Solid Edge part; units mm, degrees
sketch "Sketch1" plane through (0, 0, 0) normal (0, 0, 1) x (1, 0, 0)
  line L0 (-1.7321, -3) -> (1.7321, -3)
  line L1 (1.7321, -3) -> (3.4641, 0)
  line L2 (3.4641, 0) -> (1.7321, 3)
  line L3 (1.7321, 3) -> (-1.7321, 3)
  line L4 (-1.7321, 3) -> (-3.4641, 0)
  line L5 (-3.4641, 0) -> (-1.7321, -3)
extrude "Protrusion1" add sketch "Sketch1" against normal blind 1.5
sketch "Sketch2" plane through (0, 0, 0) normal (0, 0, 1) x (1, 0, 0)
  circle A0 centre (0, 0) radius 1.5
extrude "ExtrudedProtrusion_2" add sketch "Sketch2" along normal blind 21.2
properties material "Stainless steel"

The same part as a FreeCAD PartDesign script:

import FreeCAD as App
import Part
import Sketcher
Q = App.Units.Quantity

doc = App.newDocument("Part")
body = doc.addObject("PartDesign::Body", "Body")

sketch1 = doc.addObject("Sketcher::SketchObject", "Sketch")
body.addObject(sketch1)
sketch1.AttachmentSupport = (doc.XY_Plane, [""])
sketch1.MapMode = "FlatFace"
sketch1.addGeometry(Part.LineSegment(App.Vector(-3.5, 0, 0), App.Vector(-1.7, -3, 0)), False)
sketch1.addGeometry(Part.LineSegment(App.Vector(-1.7, -3, 0), App.Vector(1.7, -3, 0)), False)
sketch1.addGeometry(Part.LineSegment(App.Vector(1.7, -3, 0), App.Vector(3.5, 0, 0)), False)
sketch1.addGeometry(Part.LineSegment(App.Vector(3.5, 0, 0), App.Vector(1.7, 3, 0)), False)
sketch1.addGeometry(Part.LineSegment(App.Vector(1.7, 3, 0), App.Vector(-1.7, 3, 0)), False)
sketch1.addGeometry(Part.LineSegment(App.Vector(-1.7, 3, 0), App.Vector(-3.5, 0, 0)), False)
sketch1.addConstraint(Sketcher.Constraint("Coincident", 0, 2, 1, 1))
sketch1.addConstraint(Sketcher.Constraint("Coincident", 1, 2, 2, 1))
sketch1.addConstraint(Sketcher.Constraint("Coincident", 2, 2, 3, 1))
sketch1.addConstraint(Sketcher.Constraint("Coincident", 3, 2, 4, 1))
sketch1.addConstraint(Sketcher.Constraint("Coincident", 4, 2, 5, 1))
sketch1.addConstraint(Sketcher.Constraint("Coincident", 5, 2, 0, 1))
sketch1.addConstraint(Sketcher.Constraint("Horizontal", 1))
sketch1.addConstraint(Sketcher.Constraint("Horizontal", 4))
sketch1.addConstraint(Sketcher.Constraint("Symmetric", 0, 2, 3, 2, -1, 1))
sketch1.addConstraint(Sketcher.Constraint("Symmetric", 2, 2, 5, 2, -1, 1))
sketch1.addConstraint(Sketcher.Constraint("PointOnObject", 2, 2, -1))
sketch1.addConstraint(Sketcher.Constraint("Parallel", 2, 5))
sketch1.addConstraint(Sketcher.Constraint("Vertical", 1, 2, 3, 2))
sketch1.addConstraint(Sketcher.Constraint("Angle", 0, Q("-60.0007 deg")))
sketch1.addConstraint(Sketcher.Constraint("DistanceY", 0, 2, -1, 1, 3.0))
sketch1.addConstraint(Sketcher.Constraint("DistanceX", 1, 1, 1, 2, 3.4642))
pad1 = doc.addObject("PartDesign::Pad", "Pad")
body.addObject(pad1)
pad1.Profile = sketch1
pad1.Length = 1.5
pad1.Reversed = True

sketch2 = doc.addObject("Sketcher::SketchObject", "Sketch001")
body.addObject(sketch2)
sketch2.AttachmentSupport = (doc.XY_Plane, [""])
sketch2.MapMode = "FlatFace"
sketch2.addGeometry(Part.Circle(App.Vector(0, 0, 0), App.Vector(0, 0, 1), 1.5), False)
sketch2.addConstraint(Sketcher.Constraint("Coincident", 0, 3, -1, 1))
sketch2.addConstraint(Sketcher.Constraint("Diameter", 0, 3.0))
pad2 = doc.addObject("PartDesign::Pad", "Pad001")
body.addObject(pad2)
pad2.Profile = sketch2
pad2.Length = 21.2

doc.recompute()
